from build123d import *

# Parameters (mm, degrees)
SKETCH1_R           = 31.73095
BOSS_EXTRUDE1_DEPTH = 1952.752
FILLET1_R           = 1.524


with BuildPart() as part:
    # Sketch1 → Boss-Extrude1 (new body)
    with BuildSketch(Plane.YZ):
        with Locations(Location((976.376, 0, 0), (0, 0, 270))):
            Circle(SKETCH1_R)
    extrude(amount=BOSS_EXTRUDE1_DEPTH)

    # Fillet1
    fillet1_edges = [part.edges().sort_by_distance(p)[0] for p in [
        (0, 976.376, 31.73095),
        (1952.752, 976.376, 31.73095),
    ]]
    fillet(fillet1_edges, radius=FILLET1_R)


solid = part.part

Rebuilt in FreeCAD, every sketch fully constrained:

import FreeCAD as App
import Part
import Sketcher
from FreeCAD import Vector
Q = App.Units.Quantity


def edges_at(feature, points):
    """Names of the edges that pass closest to the given points."""
    edges = feature.Shape.Edges
    near = lambda p: min(range(len(edges)), key=lambda i: edges[i].distToShape(Part.Vertex(*p))[0])
    return sorted({f"Edge{near(p) + 1}" for p in points})

doc = App.newDocument("Part")
body = doc.addObject("PartDesign::Body", "Body")

# Sketch on YZ plane
sketch1 = body.newObject("Sketcher::SketchObject", "Sketch")
sketch1.AttachmentSupport = (doc.getObject("YZ_Plane"), [""])
sketch1.MapMode = "FlatFace"
sketch1.addGeometry(Part.Circle(Vector(976, 0, 0), Vector(0, 0, 1), 32), False)
sketch1.addConstraint(Sketcher.Constraint("PointOnObject", 0, 3, -1))
sketch1.addConstraint(Sketcher.Constraint("Diameter", 0, Q("2.4985 in")))
sketch1.addConstraint(Sketcher.Constraint("DistanceX", -1, 1, 0, 3, Q("38.44 in")))
pad1 = body.newObject("PartDesign::Pad", "Pad")
pad1.Profile = sketch1
pad1.Length = Q("76.88 in")
doc.recompute()

fillet = body.newObject("PartDesign::Fillet", "Fillet")
fillet.Base = (pad1, edges_at(pad1, [(0, 976.376, 31.731), (1952.752, 976.376, 31.731)]))
fillet.Radius = Q("0.06 in")

doc.recompute()
